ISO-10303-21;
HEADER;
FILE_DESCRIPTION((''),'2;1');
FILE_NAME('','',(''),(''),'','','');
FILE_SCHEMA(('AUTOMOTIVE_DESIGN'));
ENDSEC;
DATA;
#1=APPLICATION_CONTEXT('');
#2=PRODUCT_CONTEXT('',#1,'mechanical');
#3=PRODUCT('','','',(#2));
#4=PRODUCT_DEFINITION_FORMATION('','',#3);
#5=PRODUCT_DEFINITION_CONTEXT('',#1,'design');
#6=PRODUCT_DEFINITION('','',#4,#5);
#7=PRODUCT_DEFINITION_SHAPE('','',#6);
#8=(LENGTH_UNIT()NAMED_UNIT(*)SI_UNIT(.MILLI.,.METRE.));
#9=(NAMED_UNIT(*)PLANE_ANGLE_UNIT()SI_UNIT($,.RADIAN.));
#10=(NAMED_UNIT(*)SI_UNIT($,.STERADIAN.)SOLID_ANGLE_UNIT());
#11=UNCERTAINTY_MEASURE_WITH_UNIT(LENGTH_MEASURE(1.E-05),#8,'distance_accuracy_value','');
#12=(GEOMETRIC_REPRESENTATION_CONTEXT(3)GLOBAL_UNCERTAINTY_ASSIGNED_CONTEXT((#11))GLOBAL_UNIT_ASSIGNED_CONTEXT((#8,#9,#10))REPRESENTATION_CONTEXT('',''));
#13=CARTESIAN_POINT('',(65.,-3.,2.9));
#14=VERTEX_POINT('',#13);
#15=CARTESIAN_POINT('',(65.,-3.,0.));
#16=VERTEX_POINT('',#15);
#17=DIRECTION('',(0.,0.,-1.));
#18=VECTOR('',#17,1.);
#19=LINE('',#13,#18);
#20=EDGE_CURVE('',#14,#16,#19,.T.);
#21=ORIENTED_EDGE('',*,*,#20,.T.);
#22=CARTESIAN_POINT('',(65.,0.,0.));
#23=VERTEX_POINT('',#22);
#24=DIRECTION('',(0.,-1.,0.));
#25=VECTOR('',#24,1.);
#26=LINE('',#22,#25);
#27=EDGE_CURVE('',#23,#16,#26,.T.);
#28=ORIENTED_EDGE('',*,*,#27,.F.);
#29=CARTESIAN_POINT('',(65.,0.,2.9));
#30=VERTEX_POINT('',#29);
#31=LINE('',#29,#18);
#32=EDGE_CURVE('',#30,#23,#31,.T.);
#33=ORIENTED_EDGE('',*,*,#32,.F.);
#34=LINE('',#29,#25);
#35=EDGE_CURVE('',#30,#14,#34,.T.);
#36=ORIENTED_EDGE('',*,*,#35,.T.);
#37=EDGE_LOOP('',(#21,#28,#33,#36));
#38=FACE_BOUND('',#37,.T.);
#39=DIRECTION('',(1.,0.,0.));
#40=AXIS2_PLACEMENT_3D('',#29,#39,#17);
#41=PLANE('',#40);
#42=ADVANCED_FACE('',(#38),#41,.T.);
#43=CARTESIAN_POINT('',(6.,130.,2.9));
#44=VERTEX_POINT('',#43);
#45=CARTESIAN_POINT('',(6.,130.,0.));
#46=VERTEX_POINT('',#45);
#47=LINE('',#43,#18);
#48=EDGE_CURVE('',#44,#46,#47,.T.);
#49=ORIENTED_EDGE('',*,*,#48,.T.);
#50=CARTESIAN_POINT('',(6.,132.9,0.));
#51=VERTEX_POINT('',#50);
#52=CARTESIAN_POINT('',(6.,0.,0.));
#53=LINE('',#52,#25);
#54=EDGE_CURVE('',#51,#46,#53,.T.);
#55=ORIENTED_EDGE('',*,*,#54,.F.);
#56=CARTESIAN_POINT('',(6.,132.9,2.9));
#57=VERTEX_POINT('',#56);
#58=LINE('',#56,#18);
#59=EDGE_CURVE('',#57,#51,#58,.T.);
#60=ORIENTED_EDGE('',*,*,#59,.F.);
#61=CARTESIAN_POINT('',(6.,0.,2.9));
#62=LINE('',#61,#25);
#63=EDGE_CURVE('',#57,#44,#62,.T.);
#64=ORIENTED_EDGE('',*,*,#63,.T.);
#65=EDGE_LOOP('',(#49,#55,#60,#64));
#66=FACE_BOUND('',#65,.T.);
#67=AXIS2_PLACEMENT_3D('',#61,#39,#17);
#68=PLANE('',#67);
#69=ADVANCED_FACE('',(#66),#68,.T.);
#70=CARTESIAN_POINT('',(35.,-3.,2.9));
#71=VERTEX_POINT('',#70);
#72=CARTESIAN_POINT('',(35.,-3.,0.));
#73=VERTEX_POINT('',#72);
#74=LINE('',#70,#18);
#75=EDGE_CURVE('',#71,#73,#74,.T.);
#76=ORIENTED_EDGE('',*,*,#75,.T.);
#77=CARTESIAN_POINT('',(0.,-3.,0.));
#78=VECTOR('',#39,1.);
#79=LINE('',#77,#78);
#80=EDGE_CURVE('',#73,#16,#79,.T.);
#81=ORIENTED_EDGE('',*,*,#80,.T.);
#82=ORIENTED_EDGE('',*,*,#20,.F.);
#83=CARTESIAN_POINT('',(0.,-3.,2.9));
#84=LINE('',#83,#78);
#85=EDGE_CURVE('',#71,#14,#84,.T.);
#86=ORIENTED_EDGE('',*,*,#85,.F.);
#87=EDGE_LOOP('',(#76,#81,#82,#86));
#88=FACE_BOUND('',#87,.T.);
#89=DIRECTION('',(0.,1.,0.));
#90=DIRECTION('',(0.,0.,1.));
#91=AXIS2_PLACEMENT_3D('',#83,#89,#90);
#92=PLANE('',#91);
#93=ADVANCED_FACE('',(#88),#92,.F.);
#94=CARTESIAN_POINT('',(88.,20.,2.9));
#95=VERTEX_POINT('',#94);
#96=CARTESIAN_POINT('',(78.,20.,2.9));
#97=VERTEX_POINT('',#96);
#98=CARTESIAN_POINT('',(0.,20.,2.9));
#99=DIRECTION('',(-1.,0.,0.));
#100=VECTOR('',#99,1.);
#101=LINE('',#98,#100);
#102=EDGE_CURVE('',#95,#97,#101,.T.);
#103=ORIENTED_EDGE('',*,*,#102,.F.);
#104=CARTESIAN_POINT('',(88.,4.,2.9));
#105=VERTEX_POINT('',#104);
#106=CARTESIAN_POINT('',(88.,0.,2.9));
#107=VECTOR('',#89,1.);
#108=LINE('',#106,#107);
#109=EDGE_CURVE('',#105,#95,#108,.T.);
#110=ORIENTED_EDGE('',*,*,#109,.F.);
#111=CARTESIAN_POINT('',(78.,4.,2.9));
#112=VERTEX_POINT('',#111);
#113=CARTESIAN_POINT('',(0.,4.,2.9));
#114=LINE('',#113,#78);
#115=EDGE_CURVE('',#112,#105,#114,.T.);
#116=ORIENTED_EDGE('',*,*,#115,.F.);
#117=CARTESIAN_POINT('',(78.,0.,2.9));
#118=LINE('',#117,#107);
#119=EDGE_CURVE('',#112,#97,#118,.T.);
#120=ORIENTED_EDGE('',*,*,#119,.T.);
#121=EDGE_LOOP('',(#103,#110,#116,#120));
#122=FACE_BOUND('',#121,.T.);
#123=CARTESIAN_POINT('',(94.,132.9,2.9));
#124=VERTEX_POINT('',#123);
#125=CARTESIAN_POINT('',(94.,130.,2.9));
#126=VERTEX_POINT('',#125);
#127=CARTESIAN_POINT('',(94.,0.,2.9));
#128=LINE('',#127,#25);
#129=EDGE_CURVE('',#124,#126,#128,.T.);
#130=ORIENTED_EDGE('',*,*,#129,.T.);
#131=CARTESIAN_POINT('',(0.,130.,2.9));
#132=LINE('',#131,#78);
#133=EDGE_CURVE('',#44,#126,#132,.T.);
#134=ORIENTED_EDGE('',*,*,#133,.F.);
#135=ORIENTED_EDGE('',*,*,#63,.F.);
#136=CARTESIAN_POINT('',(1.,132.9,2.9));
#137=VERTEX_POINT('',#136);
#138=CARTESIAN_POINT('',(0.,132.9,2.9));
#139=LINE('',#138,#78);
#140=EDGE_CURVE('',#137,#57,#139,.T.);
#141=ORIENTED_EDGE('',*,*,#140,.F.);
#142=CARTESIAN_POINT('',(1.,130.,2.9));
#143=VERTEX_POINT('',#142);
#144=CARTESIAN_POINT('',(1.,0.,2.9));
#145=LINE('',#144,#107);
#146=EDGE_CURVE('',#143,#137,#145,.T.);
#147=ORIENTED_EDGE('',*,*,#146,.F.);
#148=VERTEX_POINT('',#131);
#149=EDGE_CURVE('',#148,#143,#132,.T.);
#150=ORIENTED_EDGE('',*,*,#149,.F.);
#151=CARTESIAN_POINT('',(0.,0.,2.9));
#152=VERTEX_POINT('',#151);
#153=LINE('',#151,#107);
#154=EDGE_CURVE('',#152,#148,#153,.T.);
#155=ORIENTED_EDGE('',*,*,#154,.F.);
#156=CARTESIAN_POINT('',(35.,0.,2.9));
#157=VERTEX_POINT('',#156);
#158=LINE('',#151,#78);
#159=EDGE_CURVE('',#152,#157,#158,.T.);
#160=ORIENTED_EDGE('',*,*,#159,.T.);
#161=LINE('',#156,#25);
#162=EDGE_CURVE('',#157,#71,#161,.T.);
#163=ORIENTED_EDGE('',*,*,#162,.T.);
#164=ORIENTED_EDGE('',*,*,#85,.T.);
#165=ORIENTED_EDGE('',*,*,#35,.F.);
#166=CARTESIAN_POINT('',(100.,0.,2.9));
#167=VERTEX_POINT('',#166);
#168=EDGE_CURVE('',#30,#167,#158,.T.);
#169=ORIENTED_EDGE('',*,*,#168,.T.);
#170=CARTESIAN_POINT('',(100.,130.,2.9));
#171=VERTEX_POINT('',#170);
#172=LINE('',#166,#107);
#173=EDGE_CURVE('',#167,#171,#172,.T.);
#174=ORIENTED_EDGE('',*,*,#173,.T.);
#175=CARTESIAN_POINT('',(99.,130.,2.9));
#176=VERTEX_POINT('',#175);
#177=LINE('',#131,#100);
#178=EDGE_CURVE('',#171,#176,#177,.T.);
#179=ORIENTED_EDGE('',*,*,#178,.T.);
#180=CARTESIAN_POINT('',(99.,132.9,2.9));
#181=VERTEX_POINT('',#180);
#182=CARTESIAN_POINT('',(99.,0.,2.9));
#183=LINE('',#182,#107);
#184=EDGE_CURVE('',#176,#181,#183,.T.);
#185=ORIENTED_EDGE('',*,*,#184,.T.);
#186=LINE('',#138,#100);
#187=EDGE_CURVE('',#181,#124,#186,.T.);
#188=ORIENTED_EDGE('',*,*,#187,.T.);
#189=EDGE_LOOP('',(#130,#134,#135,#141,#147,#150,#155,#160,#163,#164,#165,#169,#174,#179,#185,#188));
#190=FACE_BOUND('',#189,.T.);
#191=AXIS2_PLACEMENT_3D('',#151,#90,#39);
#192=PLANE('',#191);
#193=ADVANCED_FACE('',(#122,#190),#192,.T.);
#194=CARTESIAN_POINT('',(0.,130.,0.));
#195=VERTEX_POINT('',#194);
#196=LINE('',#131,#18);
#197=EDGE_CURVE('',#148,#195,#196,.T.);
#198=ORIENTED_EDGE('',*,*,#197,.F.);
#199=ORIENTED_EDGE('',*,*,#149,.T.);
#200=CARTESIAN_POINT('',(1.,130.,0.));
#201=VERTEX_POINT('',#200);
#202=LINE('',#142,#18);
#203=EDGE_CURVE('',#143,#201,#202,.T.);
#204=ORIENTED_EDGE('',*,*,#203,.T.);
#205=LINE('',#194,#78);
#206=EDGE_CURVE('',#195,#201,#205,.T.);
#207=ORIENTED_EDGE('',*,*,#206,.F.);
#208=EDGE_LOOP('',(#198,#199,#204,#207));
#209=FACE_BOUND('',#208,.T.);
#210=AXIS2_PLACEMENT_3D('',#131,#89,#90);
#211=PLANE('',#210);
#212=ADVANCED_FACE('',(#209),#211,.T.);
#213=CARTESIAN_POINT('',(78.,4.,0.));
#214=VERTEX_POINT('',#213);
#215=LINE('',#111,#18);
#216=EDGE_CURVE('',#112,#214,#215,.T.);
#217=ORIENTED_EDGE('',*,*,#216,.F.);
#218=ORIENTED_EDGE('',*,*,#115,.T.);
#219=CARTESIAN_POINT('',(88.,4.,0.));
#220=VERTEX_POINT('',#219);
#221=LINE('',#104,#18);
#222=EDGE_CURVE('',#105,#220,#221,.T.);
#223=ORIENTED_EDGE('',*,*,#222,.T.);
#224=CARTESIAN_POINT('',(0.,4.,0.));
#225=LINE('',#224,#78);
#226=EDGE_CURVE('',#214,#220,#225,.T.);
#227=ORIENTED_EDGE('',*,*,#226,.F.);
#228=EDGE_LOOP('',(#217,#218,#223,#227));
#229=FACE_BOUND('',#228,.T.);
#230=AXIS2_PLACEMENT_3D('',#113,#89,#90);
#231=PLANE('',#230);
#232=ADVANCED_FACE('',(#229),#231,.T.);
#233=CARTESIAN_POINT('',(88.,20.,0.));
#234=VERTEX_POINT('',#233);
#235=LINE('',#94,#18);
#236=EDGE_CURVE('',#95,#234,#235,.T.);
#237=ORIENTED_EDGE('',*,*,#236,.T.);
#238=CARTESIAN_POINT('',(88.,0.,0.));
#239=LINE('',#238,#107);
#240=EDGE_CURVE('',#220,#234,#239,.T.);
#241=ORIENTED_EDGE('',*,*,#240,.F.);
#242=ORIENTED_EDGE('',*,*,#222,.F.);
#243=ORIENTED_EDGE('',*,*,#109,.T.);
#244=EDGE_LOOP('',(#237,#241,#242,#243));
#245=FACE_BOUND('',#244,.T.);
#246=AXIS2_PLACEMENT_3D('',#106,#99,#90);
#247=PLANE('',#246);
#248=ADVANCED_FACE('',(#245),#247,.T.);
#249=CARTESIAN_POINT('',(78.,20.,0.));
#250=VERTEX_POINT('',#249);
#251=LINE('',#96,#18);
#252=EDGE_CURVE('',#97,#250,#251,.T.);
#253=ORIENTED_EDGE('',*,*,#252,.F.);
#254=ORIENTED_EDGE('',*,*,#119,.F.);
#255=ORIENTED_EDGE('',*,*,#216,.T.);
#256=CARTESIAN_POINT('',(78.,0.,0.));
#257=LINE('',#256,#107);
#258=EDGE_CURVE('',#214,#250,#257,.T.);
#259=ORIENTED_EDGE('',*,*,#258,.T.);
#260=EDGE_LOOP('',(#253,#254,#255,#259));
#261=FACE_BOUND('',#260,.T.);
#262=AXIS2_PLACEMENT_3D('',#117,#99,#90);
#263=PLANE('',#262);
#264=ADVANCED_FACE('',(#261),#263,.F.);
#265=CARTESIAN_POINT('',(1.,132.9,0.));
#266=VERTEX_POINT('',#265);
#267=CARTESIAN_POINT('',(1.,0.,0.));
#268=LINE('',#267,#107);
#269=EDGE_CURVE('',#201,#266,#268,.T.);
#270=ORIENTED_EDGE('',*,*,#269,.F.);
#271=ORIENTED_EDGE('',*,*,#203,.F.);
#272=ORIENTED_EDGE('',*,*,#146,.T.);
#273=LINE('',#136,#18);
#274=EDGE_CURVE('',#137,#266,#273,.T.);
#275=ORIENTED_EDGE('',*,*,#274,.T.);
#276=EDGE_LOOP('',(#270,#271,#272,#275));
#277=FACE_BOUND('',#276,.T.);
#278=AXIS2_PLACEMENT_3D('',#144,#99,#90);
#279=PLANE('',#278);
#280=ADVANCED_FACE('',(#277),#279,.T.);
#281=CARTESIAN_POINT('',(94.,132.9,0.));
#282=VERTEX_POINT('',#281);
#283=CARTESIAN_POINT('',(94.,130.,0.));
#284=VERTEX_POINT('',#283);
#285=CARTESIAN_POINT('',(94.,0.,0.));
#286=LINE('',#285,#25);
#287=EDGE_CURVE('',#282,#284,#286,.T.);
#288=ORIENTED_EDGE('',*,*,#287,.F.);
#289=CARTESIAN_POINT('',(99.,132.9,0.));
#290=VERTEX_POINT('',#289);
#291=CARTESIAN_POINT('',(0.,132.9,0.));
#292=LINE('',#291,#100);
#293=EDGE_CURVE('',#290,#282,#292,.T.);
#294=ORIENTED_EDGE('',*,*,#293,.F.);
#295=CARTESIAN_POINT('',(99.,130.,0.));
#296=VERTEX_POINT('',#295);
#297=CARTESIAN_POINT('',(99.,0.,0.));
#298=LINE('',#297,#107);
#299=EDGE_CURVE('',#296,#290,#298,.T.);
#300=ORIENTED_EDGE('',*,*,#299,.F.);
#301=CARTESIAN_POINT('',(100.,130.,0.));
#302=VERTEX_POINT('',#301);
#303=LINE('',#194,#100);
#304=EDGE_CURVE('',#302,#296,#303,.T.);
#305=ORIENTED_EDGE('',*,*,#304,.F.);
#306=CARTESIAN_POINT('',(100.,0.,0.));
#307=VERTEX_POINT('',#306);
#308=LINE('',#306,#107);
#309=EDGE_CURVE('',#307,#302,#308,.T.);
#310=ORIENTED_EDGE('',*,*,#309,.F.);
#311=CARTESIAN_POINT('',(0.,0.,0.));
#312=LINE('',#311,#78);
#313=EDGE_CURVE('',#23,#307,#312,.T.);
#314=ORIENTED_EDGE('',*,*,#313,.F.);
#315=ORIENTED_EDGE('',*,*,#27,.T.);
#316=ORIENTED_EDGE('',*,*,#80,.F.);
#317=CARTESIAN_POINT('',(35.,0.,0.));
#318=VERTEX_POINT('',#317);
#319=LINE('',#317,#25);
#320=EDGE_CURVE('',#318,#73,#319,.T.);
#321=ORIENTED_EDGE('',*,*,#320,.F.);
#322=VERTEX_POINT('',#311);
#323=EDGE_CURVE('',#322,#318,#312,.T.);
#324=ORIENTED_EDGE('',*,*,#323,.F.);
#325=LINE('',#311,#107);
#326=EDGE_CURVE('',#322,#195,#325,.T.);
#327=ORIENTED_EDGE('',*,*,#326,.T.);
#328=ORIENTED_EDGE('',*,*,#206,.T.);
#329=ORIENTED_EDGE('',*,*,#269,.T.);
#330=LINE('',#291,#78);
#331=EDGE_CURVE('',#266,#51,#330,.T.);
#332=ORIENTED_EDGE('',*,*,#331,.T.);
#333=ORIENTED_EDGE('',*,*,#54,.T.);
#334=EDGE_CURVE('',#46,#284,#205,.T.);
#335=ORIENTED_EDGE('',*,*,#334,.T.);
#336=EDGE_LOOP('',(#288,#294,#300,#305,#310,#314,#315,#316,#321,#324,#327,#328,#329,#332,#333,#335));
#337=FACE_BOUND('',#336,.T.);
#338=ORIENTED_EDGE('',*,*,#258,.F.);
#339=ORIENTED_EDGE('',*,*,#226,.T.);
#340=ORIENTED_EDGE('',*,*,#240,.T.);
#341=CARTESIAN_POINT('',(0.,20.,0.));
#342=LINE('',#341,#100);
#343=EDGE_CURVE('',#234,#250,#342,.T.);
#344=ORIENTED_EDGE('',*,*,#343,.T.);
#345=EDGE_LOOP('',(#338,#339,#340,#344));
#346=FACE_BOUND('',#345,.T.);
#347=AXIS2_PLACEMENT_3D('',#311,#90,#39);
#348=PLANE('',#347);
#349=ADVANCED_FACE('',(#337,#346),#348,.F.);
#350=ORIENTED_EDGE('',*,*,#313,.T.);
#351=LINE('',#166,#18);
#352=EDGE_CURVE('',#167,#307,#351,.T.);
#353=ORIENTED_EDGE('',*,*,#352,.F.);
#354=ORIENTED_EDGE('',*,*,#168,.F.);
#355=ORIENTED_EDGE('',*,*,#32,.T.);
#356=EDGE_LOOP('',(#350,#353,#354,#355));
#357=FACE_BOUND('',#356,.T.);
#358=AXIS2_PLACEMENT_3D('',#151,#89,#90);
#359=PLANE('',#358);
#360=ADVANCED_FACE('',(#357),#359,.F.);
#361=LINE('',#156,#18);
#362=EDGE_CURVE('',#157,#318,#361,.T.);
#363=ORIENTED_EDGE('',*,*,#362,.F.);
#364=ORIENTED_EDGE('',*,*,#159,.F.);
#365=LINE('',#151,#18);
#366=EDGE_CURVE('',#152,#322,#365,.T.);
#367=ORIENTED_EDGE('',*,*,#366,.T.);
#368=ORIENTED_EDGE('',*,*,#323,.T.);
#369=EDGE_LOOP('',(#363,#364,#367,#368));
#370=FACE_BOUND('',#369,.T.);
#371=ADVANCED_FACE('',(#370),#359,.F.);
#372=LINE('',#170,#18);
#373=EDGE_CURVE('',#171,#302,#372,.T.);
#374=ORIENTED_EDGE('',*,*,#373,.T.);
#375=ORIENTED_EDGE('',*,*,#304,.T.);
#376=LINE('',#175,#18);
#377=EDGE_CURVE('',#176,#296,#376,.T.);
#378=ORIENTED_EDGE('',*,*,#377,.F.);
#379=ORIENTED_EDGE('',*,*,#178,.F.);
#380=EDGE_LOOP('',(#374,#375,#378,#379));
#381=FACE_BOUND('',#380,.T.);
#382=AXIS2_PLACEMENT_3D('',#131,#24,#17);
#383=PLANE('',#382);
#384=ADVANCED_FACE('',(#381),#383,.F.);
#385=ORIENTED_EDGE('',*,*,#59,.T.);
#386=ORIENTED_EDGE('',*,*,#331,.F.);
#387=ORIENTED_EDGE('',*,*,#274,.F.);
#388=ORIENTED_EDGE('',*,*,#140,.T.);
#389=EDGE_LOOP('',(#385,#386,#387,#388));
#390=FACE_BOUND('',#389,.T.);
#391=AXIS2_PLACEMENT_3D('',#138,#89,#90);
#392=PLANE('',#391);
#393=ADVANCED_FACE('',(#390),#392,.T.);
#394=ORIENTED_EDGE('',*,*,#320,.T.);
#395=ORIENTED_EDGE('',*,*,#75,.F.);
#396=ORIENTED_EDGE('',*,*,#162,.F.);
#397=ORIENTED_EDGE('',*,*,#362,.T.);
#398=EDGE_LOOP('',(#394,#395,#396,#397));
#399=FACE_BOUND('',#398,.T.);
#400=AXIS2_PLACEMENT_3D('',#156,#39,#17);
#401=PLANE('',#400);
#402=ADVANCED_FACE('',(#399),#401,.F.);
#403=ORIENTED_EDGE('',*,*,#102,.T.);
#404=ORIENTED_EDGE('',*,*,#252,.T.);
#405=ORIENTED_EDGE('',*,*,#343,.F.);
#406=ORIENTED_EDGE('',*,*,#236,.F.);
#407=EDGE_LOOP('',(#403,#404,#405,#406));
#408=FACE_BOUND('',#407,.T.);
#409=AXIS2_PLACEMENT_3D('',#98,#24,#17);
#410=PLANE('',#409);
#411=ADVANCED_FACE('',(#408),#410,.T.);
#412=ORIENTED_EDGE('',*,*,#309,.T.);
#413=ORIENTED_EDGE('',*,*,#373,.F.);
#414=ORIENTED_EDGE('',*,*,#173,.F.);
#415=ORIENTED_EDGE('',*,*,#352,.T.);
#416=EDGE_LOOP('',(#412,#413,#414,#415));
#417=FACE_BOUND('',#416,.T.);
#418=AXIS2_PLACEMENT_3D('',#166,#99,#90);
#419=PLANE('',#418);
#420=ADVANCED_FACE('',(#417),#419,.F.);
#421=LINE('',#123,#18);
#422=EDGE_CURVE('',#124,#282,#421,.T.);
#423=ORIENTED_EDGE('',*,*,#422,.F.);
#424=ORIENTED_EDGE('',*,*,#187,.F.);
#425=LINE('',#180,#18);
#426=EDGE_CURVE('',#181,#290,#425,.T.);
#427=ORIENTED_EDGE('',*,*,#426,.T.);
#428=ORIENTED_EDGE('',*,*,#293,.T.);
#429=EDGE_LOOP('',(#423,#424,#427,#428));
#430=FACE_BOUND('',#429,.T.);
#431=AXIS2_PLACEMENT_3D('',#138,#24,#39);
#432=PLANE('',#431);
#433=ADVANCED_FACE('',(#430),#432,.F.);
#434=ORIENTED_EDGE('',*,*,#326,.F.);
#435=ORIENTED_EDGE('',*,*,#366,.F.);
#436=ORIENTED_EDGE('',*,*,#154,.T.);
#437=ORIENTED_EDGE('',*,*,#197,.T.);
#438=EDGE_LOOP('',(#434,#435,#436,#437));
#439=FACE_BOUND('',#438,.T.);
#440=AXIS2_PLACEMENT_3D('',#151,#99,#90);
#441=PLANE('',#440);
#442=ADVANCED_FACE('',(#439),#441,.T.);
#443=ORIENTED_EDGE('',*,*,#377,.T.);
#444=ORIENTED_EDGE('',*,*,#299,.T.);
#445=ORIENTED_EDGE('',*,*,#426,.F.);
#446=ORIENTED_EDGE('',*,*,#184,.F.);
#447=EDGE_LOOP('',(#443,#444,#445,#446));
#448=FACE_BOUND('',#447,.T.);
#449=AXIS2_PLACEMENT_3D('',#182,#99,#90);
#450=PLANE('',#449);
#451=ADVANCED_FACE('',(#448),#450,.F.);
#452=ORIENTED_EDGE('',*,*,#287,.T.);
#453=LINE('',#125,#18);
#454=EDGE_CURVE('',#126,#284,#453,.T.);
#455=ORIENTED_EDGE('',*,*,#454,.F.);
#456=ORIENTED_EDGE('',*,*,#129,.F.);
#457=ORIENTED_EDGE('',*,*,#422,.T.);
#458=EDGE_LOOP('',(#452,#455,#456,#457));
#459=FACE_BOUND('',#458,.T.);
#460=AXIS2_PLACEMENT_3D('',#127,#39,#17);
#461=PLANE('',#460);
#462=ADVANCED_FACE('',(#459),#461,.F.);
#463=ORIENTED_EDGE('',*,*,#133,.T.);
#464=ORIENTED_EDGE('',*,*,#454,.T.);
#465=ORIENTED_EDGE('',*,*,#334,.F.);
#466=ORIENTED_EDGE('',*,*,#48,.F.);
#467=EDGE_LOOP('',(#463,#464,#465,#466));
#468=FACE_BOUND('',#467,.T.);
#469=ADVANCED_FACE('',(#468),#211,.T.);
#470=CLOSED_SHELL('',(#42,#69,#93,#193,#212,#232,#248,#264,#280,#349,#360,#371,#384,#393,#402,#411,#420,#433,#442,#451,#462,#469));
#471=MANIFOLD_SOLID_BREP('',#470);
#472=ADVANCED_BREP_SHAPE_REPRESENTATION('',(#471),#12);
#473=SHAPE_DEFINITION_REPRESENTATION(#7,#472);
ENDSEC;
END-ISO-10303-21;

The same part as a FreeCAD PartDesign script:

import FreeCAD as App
import Part
import Sketcher
from FreeCAD import Vector
Q = App.Units.Quantity

doc = App.newDocument("Part")
body = doc.addObject("PartDesign::Body", "Body")

sketch1 = body.newObject("Sketcher::SketchObject", "Sketch")
sketch1.AttachmentSupport = (doc.getObject("XY_Plane"), [""])
sketch1.MapMode = "FlatFace"
sketch1.addGeometry([
    Part.LineSegment(Vector(65, -3, 0), Vector(65, 0, 0)),
    Part.LineSegment(Vector(65, 0, 0), Vector(100, 0, 0)),
    Part.LineSegment(Vector(100, 0, 0), Vector(100, 130, 0)),
    Part.LineSegment(Vector(100, 130, 0), Vector(99, 130, 0)),
    Part.LineSegment(Vector(99, 130, 0), Vector(99, 132.9, 0)),
    Part.LineSegment(Vector(99, 132.9, 0), Vector(94, 132.9, 0)),
    Part.LineSegment(Vector(94, 132.9, 0), Vector(94, 130, 0)),
    Part.LineSegment(Vector(94, 130, 0), Vector(6, 130, 0)),
    Part.LineSegment(Vector(6, 130, 0), Vector(6, 132.9, 0)),
    Part.LineSegment(Vector(6, 132.9, 0), Vector(1, 132.9, 0)),
    Part.LineSegment(Vector(1, 132.9, 0), Vector(1, 130, 0)),
    Part.LineSegment(Vector(1, 130, 0), Vector(0, 130, 0)),
    Part.LineSegment(Vector(0, 130, 0), Vector(0, 0, 0)),
    Part.LineSegment(Vector(0, 0, 0), Vector(35, 0, 0)),
    Part.LineSegment(Vector(35, 0, 0), Vector(35, -3, 0)),
    Part.LineSegment(Vector(35, -3, 0), Vector(65, -3, 0)),
    Part.LineSegment(Vector(88, 4, 0), Vector(78, 4, 0)),
    Part.LineSegment(Vector(78, 4, 0), Vector(78, 20, 0)),
    Part.LineSegment(Vector(78, 20, 0), Vector(88, 20, 0)),
    Part.LineSegment(Vector(88, 20, 0), Vector(88, 4, 0)),
], False)
sketch1.addConstraint([
    Sketcher.Constraint("Coincident", 0, 2, 1, 1),
    Sketcher.Constraint("Coincident", 1, 2, 2, 1),
    Sketcher.Constraint("Coincident", 2, 2, 3, 1),
    Sketcher.Constraint("Coincident", 3, 2, 4, 1),
    Sketcher.Constraint("Coincident", 4, 2, 5, 1),
    Sketcher.Constraint("Coincident", 5, 2, 6, 1),
    Sketcher.Constraint("Coincident", 6, 2, 7, 1),
    Sketcher.Constraint("Coincident", 7, 2, 8, 1),
    Sketcher.Constraint("Coincident", 8, 2, 9, 1),
    Sketcher.Constraint("Coincident", 9, 2, 10, 1),
    Sketcher.Constraint("Coincident", 10, 2, 11, 1),
    Sketcher.Constraint("Coincident", 11, 2, 12, 1),
    Sketcher.Constraint("Coincident", 12, 2, 13, 1),
    Sketcher.Constraint("Coincident", 13, 2, 14, 1),
    Sketcher.Constraint("Coincident", 14, 2, 15, 1),
    Sketcher.Constraint("Coincident", 15, 2, 0, 1),
    Sketcher.Constraint("Coincident", 16, 2, 17, 1),
    Sketcher.Constraint("Coincident", 17, 2, 18, 1),
    Sketcher.Constraint("Coincident", 18, 2, 19, 1),
    Sketcher.Constraint("Coincident", 19, 2, 16, 1),
    Sketcher.Constraint("Vertical", 0),
    Sketcher.Constraint("Horizontal", 1),
    Sketcher.Constraint("Vertical", 2),
    Sketcher.Constraint("Horizontal", 3),
    Sketcher.Constraint("Vertical", 4),
    Sketcher.Constraint("Horizontal", 5),
    Sketcher.Constraint("Vertical", 6),
    Sketcher.Constraint("Horizontal", 7),
    Sketcher.Constraint("Vertical", 8),
    Sketcher.Constraint("Horizontal", 9),
    Sketcher.Constraint("Vertical", 10),
    Sketcher.Constraint("Horizontal", 11),
    Sketcher.Constraint("Vertical", 12),
    Sketcher.Constraint("Horizontal", 13),
    Sketcher.Constraint("Vertical", 14),
    Sketcher.Constraint("Horizontal", 15),
    Sketcher.Constraint("Horizontal", 16),
    Sketcher.Constraint("Vertical", 17),
    Sketcher.Constraint("Horizontal", 18),
    Sketcher.Constraint("Vertical", 19),
    Sketcher.Constraint("Coincident", 12, 2, -1, 1),
    Sketcher.Constraint("PointOnObject", 0, 2, -1),
    Sketcher.Constraint("Horizontal", 3, 2, 6, 2),
    Sketcher.Constraint("Horizontal", 5, 2, 8, 2),
    Sketcher.Constraint("Horizontal", 7, 2, 10, 2),
    Sketcher.Constraint("Equal", 5, 9),
    Sketcher.Constraint("Equal", 3, 11),
    Sketcher.Constraint("Equal", 1, 13),
    Sketcher.Constraint("DistanceX", 1, 1, 1, 2, Q("35 mm")),
    Sketcher.Constraint("DistanceX", 3, 2, 3, 1, Q("1 mm")),
    Sketcher.Constraint("DistanceX", 5, 2, 5, 1, Q("5 mm")),
    Sketcher.Constraint("DistanceX", 7, 2, 7, 1, Q("88 mm")),
    Sketcher.Constraint("DistanceX", 16, 2, 16, 1, Q("10 mm")),
    Sketcher.Constraint("DistanceY", 0, 1, 0, 2, Q("3 mm")),
    Sketcher.Constraint("DistanceY", 2, 1, 2, 2, Q("130 mm")),
    Sketcher.Constraint("DistanceY", 17, 1, 17, 2, Q("16 mm")),
    Sketcher.Constraint("DistanceY", 4, 1, 4, 2, Q("2.9 mm")),
    Sketcher.Constraint("DistanceX", -1, 1, 16, 2, Q("78 mm")),
    Sketcher.Constraint("DistanceY", -1, 1, 16, 2, Q("4 mm")),
])
pad1 = body.newObject("PartDesign::Pad", "Pad")
pad1.Profile = sketch1
pad1.Length = 2.9

doc.recompute()
